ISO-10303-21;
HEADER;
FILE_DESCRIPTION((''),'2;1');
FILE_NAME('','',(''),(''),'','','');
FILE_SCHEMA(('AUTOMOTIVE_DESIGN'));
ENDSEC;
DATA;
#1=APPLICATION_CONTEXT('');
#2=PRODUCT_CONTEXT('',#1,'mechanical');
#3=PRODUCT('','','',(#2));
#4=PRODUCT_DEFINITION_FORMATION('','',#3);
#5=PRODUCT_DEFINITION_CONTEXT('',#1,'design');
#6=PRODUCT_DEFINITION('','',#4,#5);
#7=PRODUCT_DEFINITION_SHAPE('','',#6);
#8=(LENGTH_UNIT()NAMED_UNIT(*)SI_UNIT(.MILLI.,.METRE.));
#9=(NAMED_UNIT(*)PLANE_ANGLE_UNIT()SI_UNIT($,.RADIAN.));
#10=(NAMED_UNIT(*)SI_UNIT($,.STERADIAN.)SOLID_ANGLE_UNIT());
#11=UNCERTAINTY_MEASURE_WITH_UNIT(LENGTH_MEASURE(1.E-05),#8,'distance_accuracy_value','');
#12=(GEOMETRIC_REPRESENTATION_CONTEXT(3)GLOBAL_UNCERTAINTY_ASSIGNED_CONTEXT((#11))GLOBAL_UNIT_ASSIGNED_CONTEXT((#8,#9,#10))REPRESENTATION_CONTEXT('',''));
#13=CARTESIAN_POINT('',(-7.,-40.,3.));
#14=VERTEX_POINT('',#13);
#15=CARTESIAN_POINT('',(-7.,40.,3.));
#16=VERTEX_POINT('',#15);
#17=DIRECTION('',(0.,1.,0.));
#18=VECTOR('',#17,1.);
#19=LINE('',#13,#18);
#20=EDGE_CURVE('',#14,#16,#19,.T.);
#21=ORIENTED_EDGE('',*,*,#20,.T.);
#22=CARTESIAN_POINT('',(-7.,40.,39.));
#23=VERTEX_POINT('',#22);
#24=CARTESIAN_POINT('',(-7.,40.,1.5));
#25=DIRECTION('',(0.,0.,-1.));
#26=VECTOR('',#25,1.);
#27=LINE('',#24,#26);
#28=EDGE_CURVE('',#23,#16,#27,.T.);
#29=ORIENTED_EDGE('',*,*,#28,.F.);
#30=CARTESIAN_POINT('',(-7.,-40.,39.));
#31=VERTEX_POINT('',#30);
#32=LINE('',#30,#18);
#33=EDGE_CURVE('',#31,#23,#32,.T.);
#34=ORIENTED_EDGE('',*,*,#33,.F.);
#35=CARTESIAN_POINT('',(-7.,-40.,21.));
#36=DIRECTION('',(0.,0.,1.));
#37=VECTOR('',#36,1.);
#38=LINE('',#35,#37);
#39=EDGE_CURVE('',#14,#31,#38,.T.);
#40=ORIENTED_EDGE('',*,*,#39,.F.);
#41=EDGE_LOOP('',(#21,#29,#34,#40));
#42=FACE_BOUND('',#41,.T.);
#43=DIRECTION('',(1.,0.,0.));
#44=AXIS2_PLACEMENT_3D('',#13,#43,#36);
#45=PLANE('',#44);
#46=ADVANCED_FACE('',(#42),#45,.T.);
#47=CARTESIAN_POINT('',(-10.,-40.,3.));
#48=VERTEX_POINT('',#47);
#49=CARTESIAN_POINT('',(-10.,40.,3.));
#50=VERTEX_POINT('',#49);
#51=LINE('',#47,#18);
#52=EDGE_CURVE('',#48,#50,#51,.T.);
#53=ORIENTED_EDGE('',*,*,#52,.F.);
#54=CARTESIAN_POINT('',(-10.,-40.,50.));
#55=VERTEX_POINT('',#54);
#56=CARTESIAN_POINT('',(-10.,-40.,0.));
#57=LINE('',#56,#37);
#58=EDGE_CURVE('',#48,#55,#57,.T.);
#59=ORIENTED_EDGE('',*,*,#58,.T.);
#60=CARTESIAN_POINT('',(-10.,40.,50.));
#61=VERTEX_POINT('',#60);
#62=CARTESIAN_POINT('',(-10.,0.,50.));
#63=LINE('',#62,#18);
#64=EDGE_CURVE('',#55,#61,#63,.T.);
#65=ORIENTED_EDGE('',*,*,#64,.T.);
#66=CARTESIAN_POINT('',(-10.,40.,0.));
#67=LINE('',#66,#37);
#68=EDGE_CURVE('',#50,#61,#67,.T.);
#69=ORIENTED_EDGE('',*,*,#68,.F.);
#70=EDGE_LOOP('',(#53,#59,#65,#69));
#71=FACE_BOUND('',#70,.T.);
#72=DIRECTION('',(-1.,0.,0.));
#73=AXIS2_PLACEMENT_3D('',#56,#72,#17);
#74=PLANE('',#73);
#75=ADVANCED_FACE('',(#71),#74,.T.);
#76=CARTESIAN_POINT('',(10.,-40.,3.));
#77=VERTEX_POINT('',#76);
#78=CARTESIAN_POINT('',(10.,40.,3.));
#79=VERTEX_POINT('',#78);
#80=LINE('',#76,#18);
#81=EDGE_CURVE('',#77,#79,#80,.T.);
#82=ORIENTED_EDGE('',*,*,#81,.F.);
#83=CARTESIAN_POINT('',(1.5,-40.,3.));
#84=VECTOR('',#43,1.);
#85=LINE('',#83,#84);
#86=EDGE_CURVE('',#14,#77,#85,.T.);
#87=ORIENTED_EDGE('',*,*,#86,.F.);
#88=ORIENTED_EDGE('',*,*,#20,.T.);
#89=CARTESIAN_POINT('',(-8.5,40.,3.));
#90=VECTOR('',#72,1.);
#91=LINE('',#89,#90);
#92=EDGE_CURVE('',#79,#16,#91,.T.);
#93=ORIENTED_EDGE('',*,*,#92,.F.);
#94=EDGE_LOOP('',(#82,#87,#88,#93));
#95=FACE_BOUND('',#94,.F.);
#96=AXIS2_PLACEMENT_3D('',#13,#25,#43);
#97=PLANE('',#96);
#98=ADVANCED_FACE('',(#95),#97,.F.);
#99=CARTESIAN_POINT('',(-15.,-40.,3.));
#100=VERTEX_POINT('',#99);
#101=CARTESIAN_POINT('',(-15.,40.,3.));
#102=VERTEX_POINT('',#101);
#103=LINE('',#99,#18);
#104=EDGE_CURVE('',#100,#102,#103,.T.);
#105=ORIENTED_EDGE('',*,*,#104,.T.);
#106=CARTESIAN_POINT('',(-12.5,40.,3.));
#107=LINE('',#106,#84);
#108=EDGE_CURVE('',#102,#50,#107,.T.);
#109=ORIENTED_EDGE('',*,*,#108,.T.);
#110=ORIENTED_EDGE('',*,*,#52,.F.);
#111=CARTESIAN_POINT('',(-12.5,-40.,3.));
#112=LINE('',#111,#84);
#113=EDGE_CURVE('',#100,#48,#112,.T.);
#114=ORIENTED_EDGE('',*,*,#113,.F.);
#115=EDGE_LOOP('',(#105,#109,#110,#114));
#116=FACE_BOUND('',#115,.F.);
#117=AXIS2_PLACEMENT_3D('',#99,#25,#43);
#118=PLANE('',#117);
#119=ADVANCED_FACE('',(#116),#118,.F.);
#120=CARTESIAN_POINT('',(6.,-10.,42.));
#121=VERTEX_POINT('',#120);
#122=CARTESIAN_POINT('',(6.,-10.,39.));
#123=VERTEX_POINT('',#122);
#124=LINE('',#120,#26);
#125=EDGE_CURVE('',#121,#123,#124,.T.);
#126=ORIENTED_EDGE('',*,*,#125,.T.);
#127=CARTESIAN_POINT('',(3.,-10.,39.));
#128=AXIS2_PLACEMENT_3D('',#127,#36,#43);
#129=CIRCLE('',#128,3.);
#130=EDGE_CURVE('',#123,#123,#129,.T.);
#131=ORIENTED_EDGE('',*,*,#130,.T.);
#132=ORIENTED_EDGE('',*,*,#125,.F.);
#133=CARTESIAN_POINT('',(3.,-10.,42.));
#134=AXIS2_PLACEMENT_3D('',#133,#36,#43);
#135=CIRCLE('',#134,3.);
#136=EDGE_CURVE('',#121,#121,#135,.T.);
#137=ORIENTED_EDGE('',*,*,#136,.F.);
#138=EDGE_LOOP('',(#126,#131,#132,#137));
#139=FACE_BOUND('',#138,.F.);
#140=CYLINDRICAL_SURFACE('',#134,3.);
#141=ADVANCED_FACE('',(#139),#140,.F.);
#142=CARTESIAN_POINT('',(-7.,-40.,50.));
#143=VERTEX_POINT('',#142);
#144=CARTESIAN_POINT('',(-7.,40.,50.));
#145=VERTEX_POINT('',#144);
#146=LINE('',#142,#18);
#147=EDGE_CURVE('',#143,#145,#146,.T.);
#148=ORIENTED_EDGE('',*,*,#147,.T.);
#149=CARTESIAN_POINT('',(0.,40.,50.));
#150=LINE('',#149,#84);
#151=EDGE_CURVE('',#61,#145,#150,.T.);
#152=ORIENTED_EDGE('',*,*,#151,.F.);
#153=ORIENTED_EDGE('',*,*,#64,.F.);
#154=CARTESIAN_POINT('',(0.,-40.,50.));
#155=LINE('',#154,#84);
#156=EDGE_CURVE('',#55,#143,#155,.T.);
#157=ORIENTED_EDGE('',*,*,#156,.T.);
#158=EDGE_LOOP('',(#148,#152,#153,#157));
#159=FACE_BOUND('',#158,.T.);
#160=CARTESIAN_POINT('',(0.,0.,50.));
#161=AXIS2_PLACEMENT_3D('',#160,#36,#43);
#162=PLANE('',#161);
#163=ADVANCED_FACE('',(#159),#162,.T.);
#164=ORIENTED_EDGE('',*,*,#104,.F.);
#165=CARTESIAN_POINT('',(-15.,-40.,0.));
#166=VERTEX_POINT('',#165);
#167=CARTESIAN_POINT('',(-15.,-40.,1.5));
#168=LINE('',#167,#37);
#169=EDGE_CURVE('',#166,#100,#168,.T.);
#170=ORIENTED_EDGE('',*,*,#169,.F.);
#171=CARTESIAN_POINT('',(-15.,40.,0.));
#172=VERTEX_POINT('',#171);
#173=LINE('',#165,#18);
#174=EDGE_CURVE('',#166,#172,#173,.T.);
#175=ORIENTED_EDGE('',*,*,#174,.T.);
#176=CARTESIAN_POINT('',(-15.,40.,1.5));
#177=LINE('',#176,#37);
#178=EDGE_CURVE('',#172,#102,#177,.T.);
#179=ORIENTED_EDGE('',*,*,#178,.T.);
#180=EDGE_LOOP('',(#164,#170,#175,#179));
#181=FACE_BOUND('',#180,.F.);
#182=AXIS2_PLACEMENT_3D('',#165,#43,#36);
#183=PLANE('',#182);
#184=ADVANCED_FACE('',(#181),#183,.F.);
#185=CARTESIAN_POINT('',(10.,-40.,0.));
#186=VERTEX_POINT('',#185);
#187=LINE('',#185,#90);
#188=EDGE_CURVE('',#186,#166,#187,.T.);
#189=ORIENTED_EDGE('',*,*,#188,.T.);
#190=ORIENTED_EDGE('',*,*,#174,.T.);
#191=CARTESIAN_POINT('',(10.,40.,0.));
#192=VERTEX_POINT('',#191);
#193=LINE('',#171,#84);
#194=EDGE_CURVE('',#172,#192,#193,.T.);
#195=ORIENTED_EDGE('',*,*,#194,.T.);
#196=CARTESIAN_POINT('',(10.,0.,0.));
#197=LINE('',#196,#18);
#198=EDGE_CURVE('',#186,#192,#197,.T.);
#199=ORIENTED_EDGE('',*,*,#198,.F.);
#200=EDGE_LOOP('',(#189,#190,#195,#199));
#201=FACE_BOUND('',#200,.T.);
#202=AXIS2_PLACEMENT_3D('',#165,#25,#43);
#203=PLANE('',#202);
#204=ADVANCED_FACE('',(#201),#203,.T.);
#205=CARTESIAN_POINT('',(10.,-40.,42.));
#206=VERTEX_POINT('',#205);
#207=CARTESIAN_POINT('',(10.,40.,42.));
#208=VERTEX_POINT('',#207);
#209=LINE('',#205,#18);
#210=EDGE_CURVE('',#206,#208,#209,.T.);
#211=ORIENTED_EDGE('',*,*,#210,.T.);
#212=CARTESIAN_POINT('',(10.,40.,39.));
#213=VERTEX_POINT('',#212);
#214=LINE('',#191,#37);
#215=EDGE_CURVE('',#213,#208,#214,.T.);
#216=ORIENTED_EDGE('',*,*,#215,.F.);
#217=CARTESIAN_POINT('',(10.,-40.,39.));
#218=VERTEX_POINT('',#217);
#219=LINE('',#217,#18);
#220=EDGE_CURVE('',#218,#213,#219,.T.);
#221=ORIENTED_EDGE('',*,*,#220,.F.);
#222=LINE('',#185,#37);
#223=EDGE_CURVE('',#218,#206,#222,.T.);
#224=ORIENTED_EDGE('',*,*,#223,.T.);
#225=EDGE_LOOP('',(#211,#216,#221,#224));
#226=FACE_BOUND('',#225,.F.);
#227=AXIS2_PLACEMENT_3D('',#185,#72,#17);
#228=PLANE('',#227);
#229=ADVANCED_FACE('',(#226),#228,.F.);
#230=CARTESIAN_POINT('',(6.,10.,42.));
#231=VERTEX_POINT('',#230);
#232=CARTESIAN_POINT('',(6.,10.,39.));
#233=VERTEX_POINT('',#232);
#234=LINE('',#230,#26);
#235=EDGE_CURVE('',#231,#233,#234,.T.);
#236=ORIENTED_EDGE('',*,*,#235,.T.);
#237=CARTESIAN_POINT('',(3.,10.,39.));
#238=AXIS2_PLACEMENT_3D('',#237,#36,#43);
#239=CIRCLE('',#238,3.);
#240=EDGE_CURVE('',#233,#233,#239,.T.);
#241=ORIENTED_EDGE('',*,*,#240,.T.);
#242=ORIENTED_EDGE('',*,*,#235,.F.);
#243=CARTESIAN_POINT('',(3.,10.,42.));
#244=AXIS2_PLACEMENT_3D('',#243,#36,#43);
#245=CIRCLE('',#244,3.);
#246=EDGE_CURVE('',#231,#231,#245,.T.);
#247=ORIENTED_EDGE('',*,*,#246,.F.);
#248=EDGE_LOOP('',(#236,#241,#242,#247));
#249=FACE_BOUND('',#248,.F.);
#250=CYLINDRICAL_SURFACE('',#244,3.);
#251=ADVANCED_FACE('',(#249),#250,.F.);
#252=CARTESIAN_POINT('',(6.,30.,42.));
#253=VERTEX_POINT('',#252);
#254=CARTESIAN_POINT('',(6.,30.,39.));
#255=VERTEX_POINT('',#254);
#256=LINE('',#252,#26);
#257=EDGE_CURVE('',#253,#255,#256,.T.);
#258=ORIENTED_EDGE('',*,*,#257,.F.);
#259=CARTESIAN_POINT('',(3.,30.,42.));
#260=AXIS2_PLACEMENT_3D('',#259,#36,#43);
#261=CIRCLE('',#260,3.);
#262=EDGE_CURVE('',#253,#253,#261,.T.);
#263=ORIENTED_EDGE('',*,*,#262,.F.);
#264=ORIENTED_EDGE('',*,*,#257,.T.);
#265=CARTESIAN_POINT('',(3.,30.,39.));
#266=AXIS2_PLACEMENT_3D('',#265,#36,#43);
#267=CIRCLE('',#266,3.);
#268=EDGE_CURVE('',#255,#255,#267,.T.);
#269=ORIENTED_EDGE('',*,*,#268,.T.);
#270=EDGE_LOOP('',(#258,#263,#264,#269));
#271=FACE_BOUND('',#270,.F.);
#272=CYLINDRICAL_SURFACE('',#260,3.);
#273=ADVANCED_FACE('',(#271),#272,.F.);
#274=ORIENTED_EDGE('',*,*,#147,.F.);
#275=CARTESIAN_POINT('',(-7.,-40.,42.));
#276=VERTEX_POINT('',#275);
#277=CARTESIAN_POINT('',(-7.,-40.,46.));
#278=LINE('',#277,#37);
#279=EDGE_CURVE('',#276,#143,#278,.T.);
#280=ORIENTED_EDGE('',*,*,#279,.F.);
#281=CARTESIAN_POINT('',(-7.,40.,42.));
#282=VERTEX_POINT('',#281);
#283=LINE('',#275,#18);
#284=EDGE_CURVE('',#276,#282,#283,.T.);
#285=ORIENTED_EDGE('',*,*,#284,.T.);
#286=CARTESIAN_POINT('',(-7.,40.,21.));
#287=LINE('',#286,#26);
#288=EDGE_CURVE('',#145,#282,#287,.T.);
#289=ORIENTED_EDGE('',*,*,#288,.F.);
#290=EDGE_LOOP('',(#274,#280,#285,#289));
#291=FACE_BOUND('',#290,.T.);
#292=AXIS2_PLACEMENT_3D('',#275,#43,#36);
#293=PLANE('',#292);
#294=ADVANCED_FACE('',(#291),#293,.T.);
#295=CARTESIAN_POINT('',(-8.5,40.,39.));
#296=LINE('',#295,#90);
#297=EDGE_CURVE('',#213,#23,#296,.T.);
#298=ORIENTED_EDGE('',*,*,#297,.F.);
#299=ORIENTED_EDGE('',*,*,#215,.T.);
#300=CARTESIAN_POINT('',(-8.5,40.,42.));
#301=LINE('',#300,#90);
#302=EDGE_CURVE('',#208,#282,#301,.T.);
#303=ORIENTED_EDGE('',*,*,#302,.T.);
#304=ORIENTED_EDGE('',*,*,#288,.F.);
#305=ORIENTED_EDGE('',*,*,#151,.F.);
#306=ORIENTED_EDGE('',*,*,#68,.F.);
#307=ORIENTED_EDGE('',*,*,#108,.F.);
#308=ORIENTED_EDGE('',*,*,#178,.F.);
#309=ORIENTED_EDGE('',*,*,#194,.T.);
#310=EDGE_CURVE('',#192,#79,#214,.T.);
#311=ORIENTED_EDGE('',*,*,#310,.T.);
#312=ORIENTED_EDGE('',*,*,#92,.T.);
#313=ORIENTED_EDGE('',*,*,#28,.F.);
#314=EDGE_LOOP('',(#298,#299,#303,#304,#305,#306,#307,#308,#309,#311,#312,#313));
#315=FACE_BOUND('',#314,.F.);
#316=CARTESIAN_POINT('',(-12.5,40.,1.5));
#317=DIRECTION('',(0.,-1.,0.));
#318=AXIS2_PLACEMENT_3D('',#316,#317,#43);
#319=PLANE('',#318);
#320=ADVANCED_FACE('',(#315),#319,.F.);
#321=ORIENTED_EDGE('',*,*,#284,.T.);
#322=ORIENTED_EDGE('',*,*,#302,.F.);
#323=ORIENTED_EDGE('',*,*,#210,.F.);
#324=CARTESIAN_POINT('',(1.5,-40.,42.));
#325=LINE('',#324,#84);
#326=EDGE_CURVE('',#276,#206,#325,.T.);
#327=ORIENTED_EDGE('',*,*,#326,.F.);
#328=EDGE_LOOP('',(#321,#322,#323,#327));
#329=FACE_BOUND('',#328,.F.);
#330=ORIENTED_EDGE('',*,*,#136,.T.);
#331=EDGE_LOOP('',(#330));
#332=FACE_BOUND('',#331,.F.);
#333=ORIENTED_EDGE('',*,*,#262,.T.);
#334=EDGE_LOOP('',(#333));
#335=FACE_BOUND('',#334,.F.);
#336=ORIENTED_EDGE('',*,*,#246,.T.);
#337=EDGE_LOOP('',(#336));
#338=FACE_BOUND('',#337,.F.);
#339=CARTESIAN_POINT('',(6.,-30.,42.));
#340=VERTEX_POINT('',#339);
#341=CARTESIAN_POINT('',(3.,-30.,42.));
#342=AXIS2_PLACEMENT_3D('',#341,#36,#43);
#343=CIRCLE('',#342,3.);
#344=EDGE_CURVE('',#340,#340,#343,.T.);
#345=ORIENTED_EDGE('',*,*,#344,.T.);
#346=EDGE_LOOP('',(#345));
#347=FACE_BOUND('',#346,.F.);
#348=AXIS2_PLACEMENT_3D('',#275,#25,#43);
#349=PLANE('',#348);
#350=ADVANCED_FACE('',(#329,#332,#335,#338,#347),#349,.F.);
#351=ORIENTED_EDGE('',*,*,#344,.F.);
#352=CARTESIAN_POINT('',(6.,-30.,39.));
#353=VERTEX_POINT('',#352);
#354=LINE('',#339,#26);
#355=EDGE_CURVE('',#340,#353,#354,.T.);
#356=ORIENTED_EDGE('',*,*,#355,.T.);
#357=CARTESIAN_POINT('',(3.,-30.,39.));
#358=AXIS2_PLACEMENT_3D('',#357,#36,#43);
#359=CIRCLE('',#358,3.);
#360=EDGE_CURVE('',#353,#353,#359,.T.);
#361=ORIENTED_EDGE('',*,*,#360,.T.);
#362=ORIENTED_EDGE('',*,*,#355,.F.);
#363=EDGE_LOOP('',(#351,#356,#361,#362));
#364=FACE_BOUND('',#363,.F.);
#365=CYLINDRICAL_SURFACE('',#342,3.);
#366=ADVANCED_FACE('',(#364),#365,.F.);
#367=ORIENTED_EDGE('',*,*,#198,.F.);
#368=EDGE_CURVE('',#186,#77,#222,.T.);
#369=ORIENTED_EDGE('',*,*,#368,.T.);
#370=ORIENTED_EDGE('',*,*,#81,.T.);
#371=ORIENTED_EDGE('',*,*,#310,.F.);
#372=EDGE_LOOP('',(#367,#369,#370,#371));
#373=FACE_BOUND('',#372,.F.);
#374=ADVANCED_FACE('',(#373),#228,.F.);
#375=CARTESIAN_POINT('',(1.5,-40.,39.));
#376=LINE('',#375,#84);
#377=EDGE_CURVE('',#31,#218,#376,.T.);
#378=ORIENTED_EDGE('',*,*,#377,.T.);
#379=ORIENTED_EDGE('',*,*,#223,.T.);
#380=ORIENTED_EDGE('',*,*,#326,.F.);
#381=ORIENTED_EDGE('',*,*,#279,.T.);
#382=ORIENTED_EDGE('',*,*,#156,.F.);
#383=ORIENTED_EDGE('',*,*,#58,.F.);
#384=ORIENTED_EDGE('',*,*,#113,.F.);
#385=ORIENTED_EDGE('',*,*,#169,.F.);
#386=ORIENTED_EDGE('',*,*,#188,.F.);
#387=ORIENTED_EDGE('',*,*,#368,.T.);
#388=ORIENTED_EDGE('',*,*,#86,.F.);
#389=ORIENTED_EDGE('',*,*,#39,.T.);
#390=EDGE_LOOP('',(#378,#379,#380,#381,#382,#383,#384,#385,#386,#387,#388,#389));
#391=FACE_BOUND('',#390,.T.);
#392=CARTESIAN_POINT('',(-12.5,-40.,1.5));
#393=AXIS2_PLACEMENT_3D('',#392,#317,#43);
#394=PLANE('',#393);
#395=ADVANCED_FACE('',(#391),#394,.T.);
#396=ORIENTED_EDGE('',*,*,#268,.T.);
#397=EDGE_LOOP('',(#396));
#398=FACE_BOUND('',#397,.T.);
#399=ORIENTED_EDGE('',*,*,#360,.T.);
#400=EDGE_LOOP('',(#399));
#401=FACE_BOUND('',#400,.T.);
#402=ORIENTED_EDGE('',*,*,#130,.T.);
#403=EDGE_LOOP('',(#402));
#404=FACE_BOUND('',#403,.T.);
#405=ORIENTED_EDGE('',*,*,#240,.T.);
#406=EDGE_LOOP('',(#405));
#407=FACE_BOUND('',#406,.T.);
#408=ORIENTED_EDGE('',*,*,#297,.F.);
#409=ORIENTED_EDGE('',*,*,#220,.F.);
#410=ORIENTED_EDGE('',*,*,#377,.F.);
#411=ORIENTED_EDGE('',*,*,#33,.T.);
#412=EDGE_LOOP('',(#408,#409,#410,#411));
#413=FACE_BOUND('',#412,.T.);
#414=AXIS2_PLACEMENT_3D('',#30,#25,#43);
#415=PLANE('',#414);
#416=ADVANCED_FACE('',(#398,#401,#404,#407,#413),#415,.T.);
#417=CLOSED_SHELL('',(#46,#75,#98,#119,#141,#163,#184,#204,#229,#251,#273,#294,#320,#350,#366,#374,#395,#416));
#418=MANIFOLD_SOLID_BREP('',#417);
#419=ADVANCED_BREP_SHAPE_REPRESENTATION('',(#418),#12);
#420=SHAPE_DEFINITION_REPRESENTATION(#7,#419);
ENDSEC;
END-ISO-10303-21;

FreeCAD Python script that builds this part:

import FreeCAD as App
import Part
import Sketcher

V = App.Vector
Q = App.Units.Quantity

doc = App.newDocument("Part")
body = doc.addObject("PartDesign::Body", "Body")

# Sketch on XY plane
sketch1 = body.newObject("Sketcher::SketchObject", "Sketch")
sketch1.AttachmentSupport = (doc.getObject("XY_Plane"), [""])
sketch1.MapMode = "FlatFace"
sketch1.addGeometry(Part.LineSegment(V(-10, 40, 0), V(-10, -40, 0)), False)
sketch1.addGeometry(Part.LineSegment(V(-10, -40, 0), V(10, -40, 0)), False)
sketch1.addGeometry(Part.LineSegment(V(10, -40, 0), V(10, 40, 0)), False)
sketch1.addGeometry(Part.LineSegment(V(10, 40, 0), V(-10, 40, 0)), False)
sketch1.addConstraint(Sketcher.Constraint("Coincident", 0, 2, 1, 1))
sketch1.addConstraint(Sketcher.Constraint("Coincident", 1, 2, 2, 1))
sketch1.addConstraint(Sketcher.Constraint("Coincident", 2, 2, 3, 1))
sketch1.addConstraint(Sketcher.Constraint("Coincident", 3, 2, 0, 1))
sketch1.addConstraint(Sketcher.Constraint("Vertical", 0))
sketch1.addConstraint(Sketcher.Constraint("Horizontal", 1))
sketch1.addConstraint(Sketcher.Constraint("Vertical", 2))
sketch1.addConstraint(Sketcher.Constraint("Horizontal", 3))
sketch1.addConstraint(Sketcher.Constraint("Symmetric", 0, 2, 2, 2, -1, 1))
sketch1.addConstraint(Sketcher.Constraint("DistanceX", 1, 1, 1, 2, Q("20 mm")))
sketch1.addConstraint(Sketcher.Constraint("DistanceY", 0, 2, 0, 1, Q("80 mm")))
pad1 = body.newObject("PartDesign::Pad", "Pad")
pad1.Profile = sketch1
pad1.Length = 50

# Sketch on XZ plane
sketch2 = body.newObject("Sketcher::SketchObject", "Sketch001")
sketch2.AttachmentSupport = (doc.getObject("XZ_Plane"), [""])
sketch2.MapMode = "FlatFace"
sketch2.AttachmentOffset = App.Placement(V(0, 0, 40), App.Rotation())
sketch2.addGeometry(Part.LineSegment(V(-7, 39, 0), V(-7, 3, 0)), False)
sketch2.addGeometry(Part.LineSegment(V(-7, 3, 0), V(10, 3, 0)), False)
sketch2.addGeometry(Part.LineSegment(V(10, 3, 0), V(10, 39, 0)), False)
sketch2.addGeometry(Part.LineSegment(V(10, 39, 0), V(-7, 39, 0)), False)
sketch2.addGeometry(Part.LineSegment(V(-7, 50, 0), V(-7, 42, 0)), False)
sketch2.addGeometry(Part.LineSegment(V(-7, 42, 0), V(10, 42, 0)), False)
sketch2.addGeometry(Part.LineSegment(V(10, 42, 0), V(10, 50, 0)), False)
sketch2.addGeometry(Part.LineSegment(V(10, 50, 0), V(-7, 50, 0)), False)
sketch2.addConstraint(Sketcher.Constraint("Coincident", 0, 2, 1, 1))
sketch2.addConstraint(Sketcher.Constraint("Coincident", 1, 2, 2, 1))
sketch2.addConstraint(Sketcher.Constraint("Coincident", 2, 2, 3, 1))
sketch2.addConstraint(Sketcher.Constraint("Coincident", 3, 2, 0, 1))
sketch2.addConstraint(Sketcher.Constraint("Coincident", 4, 2, 5, 1))
sketch2.addConstraint(Sketcher.Constraint("Coincident", 5, 2, 6, 1))
sketch2.addConstraint(Sketcher.Constraint("Coincident", 6, 2, 7, 1))
sketch2.addConstraint(Sketcher.Constraint("Coincident", 7, 2, 4, 1))
sketch2.addConstraint(Sketcher.Constraint("Vertical", 0))
sketch2.addConstraint(Sketcher.Constraint("Horizontal", 1))
sketch2.addConstraint(Sketcher.Constraint("Vertical", 2))
sketch2.addConstraint(Sketcher.Constraint("Horizontal", 3))
sketch2.addConstraint(Sketcher.Constraint("Vertical", 4))
sketch2.addConstraint(Sketcher.Constraint("Horizontal", 5))
sketch2.addConstraint(Sketcher.Constraint("Vertical", 6))
sketch2.addConstraint(Sketcher.Constraint("Horizontal", 7))
sketch2.addConstraint(Sketcher.Constraint("Vertical", 3, 2, 4, 2))
sketch2.addConstraint(Sketcher.Constraint("Vertical", 2, 2, 5, 2))
sketch2.addConstraint(Sketcher.Constraint("DistanceX", 1, 1, 1, 2, Q("17 mm")))
sketch2.addConstraint(Sketcher.Constraint("DistanceY", 0, 2, 0, 1, Q("36 mm")))
sketch2.addConstraint(Sketcher.Constraint("DistanceY", 4, 2, 4, 1, Q("8 mm")))
sketch2.addConstraint(Sketcher.Constraint("DistanceX", 0, 2, -1, 1, Q("7 mm")))
sketch2.addConstraint(Sketcher.Constraint("DistanceY", -1, 1, 0, 2, Q("3 mm")))
sketch2.addConstraint(Sketcher.Constraint("DistanceY", -1, 1, 4, 2, Q("42 mm")))
pocket1 = body.newObject("PartDesign::Pocket", "Pocket")
pocket1.Profile = sketch2
pocket1.Type = "ThroughAll"

# Sketch on XY plane
sketch3 = body.newObject("Sketcher::SketchObject", "Sketch002")
sketch3.AttachmentSupport = (doc.getObject("XY_Plane"), [""])
sketch3.MapMode = "FlatFace"
sketch3.AttachmentOffset = App.Placement(V(0, 0, 42), App.Rotation())
sketch3.addGeometry(Part.Circle(V(3, -30, 0), V(0, 0, 1), 3), False)
sketch3.addGeometry(Part.Circle(V(3, -10, 0), V(0, 0, 1), 3), False)
sketch3.addGeometry(Part.Circle(V(3, 10, 0), V(0, 0, 1), 3), False)
sketch3.addGeometry(Part.Circle(V(3, 30, 0), V(0, 0, 1), 3), False)
sketch3.addConstraint(Sketcher.Constraint("Equal", 0, 1))
sketch3.addConstraint(Sketcher.Constraint("Equal", 1, 2))
sketch3.addConstraint(Sketcher.Constraint("Equal", 2, 3))
sketch3.addConstraint(Sketcher.Constraint("Symmetric", 1, 3, 2, 3, -1))
sketch3.addConstraint(Sketcher.Constraint("Symmetric", 0, 3, 3, 3, -1))
sketch3.addConstraint(Sketcher.Constraint("Vertical", 0, 3, 1, 3))
sketch3.addConstraint(Sketcher.Constraint("Diameter", 0, Q("6 mm")))
sketch3.addConstraint(Sketcher.Constraint("DistanceX", -1, 1, 0, 3, Q("3 mm")))
sketch3.addConstraint(Sketcher.Constraint("DistanceY", 0, 3, -1, 1, Q("30 mm")))
sketch3.addConstraint(Sketcher.Constraint("DistanceY", 1, 3, -1, 1, Q("10 mm")))
pocket2 = body.newObject("PartDesign::Pocket", "Pocket001")
pocket2.Profile = sketch3
pocket2.Length = 3

# Sketch on XZ plane
sketch4 = body.newObject("Sketcher::SketchObject", "Sketch003")
sketch4.AttachmentSupport = (doc.getObject("XZ_Plane"), [""])
sketch4.MapMode = "FlatFace"
sketch4.AttachmentOffset = App.Placement(V(0, 0, 40), App.Rotation())
sketch4.addGeometry(Part.LineSegment(V(-15, 3, 0), V(-15, 0, 0)), False)
sketch4.addGeometry(Part.LineSegment(V(-15, 0, 0), V(-10, 0, 0)), False)
sketch4.addGeometry(Part.LineSegment(V(-10, 0, 0), V(-10, 3, 0)), False)
sketch4.addGeometry(Part.LineSegment(V(-10, 3, 0), V(-15, 3, 0)), False)
sketch4.addConstraint(Sketcher.Constraint("Coincident", 0, 2, 1, 1))
sketch4.addConstraint(Sketcher.Constraint("Coincident", 1, 2, 2, 1))
sketch4.addConstraint(Sketcher.Constraint("Coincident", 2, 2, 3, 1))
sketch4.addConstraint(Sketcher.Constraint("Coincident", 3, 2, 0, 1))
sketch4.addConstraint(Sketcher.Constraint("Vertical", 0))
sketch4.addConstraint(Sketcher.Constraint("Horizontal", 1))
sketch4.addConstraint(Sketcher.Constraint("Vertical", 2))
sketch4.addConstraint(Sketcher.Constraint("Horizontal", 3))
sketch4.addConstraint(Sketcher.Constraint("PointOnObject", 0, 2, -1))
sketch4.addConstraint(Sketcher.Constraint("DistanceX", 1, 1, 1, 2, Q("5 mm")))
sketch4.addConstraint(Sketcher.Constraint("DistanceY", 0, 2, 0, 1, Q("3 mm")))
sketch4.addConstraint(Sketcher.Constraint("DistanceX", 0, 2, -1, 1, Q("15 mm")))
pad2 = body.newObject("PartDesign::Pad", "Pad001")
pad2.Profile = sketch4
pad2.Length = 80
pad2.Reversed = True

doc.recompute()
